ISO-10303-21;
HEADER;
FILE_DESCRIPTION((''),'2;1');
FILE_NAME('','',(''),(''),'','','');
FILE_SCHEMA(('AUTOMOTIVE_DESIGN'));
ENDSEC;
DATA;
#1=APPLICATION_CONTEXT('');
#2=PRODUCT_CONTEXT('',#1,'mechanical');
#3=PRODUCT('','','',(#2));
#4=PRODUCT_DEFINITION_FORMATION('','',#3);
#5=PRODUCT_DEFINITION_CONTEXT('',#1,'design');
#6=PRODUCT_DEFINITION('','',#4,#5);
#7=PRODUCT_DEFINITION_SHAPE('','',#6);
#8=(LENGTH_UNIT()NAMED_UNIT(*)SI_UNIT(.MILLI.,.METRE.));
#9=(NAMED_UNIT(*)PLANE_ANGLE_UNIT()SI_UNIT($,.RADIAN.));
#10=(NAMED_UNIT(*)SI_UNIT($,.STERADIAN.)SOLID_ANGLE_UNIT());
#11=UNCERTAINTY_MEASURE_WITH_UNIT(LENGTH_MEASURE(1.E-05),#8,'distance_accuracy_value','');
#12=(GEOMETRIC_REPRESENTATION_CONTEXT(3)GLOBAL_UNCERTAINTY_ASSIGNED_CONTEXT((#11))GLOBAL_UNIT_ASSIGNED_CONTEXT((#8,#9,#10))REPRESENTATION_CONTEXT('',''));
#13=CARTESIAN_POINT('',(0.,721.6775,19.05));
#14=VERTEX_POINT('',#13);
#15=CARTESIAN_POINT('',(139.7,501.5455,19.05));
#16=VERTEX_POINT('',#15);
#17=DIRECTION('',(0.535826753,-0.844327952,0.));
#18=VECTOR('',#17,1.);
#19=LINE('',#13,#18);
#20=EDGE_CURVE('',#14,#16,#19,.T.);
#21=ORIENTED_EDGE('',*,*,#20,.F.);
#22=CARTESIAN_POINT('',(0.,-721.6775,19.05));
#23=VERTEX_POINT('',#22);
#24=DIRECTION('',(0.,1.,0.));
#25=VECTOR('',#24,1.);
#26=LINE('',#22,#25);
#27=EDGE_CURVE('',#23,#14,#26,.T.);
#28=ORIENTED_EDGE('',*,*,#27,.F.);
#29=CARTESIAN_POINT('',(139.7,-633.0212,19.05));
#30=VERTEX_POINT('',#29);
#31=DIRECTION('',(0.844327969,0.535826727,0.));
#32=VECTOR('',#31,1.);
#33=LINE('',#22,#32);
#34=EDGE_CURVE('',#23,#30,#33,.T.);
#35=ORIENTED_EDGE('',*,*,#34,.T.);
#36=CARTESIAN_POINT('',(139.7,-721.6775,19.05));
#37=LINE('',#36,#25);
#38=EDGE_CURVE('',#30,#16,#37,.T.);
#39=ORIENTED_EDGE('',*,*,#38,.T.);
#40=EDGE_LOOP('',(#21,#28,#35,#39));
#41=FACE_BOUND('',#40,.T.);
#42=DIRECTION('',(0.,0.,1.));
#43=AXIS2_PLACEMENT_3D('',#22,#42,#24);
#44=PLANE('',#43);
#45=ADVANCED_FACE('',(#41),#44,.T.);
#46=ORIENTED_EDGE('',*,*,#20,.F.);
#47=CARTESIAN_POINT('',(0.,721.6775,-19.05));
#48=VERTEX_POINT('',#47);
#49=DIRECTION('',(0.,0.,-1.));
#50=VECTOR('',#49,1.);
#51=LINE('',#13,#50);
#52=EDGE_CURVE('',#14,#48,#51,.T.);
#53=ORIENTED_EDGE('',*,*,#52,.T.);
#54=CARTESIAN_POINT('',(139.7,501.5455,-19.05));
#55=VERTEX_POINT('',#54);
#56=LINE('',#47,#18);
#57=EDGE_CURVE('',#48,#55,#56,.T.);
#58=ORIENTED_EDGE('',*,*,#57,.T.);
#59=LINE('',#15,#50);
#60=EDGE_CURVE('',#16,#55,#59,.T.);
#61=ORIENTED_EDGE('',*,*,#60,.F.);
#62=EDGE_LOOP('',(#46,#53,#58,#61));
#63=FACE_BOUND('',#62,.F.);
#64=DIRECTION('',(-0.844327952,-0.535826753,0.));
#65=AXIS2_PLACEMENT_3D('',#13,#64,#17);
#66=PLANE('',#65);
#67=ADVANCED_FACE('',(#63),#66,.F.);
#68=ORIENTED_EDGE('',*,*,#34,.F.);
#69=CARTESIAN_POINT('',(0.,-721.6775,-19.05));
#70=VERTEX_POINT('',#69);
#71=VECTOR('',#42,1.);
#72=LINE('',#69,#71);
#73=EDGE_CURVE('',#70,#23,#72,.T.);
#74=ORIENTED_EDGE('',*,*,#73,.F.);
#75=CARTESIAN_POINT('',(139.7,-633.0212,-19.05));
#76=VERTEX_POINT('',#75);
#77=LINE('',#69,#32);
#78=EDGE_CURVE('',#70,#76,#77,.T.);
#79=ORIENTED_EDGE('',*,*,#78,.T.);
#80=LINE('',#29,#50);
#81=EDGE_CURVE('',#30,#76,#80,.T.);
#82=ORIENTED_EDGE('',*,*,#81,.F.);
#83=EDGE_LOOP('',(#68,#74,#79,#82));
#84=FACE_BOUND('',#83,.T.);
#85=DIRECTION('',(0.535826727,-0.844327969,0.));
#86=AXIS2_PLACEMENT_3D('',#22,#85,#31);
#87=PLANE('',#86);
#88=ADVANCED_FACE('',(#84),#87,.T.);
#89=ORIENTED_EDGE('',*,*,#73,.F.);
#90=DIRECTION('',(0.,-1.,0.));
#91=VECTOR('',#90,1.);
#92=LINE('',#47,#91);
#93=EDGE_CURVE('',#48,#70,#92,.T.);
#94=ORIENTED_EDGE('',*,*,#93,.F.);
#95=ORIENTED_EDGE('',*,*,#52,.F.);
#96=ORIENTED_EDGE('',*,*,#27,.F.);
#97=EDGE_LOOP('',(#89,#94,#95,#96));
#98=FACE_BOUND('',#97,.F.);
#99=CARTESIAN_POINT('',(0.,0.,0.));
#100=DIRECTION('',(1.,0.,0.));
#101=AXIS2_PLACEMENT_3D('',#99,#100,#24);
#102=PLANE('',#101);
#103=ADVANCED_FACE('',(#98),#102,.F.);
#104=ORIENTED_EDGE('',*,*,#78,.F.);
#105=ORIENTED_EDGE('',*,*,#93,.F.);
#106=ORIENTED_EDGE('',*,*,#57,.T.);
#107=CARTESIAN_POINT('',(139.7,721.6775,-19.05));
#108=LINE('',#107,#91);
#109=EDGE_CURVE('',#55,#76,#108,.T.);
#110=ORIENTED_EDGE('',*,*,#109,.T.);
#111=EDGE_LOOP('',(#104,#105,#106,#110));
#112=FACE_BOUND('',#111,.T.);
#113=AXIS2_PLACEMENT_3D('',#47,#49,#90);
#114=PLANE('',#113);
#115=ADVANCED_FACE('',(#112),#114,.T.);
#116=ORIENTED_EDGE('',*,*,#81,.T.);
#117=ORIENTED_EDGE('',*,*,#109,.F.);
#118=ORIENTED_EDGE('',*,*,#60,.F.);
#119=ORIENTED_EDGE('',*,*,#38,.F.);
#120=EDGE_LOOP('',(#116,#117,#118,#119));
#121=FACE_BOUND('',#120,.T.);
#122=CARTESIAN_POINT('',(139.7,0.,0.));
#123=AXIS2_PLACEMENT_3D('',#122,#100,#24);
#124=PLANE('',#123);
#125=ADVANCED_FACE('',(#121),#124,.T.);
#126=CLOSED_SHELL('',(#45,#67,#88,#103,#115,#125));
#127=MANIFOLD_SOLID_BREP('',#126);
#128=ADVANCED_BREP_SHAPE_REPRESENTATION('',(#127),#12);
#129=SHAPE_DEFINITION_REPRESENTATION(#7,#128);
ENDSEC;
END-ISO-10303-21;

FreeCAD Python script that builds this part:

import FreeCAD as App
import Part
import Sketcher
from FreeCAD import Vector
Q = App.Units.Quantity

doc = App.newDocument("Part")
body = doc.addObject("PartDesign::Body", "Body")

# Sketch on YZ plane
sketch1 = doc.addObject("Sketcher::SketchObject", "Sketch")
body.addObject(sketch1)
sketch1.AttachmentSupport = (doc.YZ_Plane, [""])
sketch1.MapMode = "FlatFace"
sketch1.addGeometry([
    Part.LineSegment(Vector(722, 19, 0), Vector(-722, 19, 0)),
    Part.LineSegment(Vector(-722, 19, 0), Vector(-722, -19, 0)),
    Part.LineSegment(Vector(-722, -19, 0), Vector(722, -19, 0)),
    Part.LineSegment(Vector(722, -19, 0), Vector(722, 19, 0)),
], False)
sketch1.addConstraint([
    Sketcher.Constraint("Coincident", 0, 2, 1, 1),
    Sketcher.Constraint("Coincident", 1, 2, 2, 1),
    Sketcher.Constraint("Coincident", 2, 2, 3, 1),
    Sketcher.Constraint("Coincident", 3, 2, 0, 1),
    Sketcher.Constraint("Horizontal", 0),
    Sketcher.Constraint("Vertical", 1),
    Sketcher.Constraint("Horizontal", 2),
    Sketcher.Constraint("Vertical", 3),
    Sketcher.Constraint("Symmetric", 0, 2, 2, 2, -1, 1),
    Sketcher.Constraint("DistanceY", 1, 2, 1, 1, Q("1.5 in")),
    Sketcher.Constraint("DistanceX", 0, 2, 0, 1, Q("56.825 in")),
])
pad1 = doc.addObject("PartDesign::Pad", "Pad")
body.addObject(pad1)
pad1.Profile = sketch1
pad1.Length = Q("5.5 in")

# Sketch on XY plane
sketch2 = doc.addObject("Sketcher::SketchObject", "Sketch001")
body.addObject(sketch2)
sketch2.AttachmentSupport = (doc.XY_Plane, [""])
sketch2.MapMode = "FlatFace"
sketch2.AttachmentOffset = App.Placement(Vector(0, 0, 0.75 * 25.4), App.Rotation())
sketch2.addGeometry([
    Part.LineSegment(Vector(140, -633, 0), Vector(0, -722, 0)),  # 0
    Part.LineSegment(Vector(0, -722, 0), Vector(140, -722, 0)),  # 1
    Part.LineSegment(Vector(140, -722, 0), Vector(140, -633, 0)),  # 2
    Part.LineSegment(Vector(140, 722, 0), Vector(0, 722, 0)),  # 3
    Part.LineSegment(Vector(0, 722, 0), Vector(140, 502, 0)),  # 4
    Part.LineSegment(Vector(140, 502, 0), Vector(140, 722, 0)),  # 5
], False)
sketch2.addConstraint([
    Sketcher.Constraint("Coincident", 0, 2, 1, 1),
    Sketcher.Constraint("Coincident", 1, 2, 2, 1),
    Sketcher.Constraint("Coincident", 2, 2, 0, 1),
    Sketcher.Constraint("Coincident", 3, 2, 4, 1),
    Sketcher.Constraint("Coincident", 4, 2, 5, 1),
    Sketcher.Constraint("Coincident", 5, 2, 3, 1),
    Sketcher.Constraint("Horizontal", 1),
    Sketcher.Constraint("Vertical", 2),
    Sketcher.Constraint("Horizontal", 3),
    Sketcher.Constraint("Vertical", 5),
    Sketcher.Constraint("Symmetric", 0, 2, 3, 2, -1, 1),
    Sketcher.Constraint("PointOnObject", 0, 2, -2),
    Sketcher.Constraint("Perpendicular", 0, 4),
    Sketcher.Constraint("Vertical", 2, 2, 4, 2),
    Sketcher.Constraint("Angle", 4, Q("-57.6 deg")),
    Sketcher.Constraint("DistanceX", 1, 1, 1, 2, Q("5.5 in")),
    Sketcher.Constraint("DistanceY", 0, 2, 3, 2, Q("56.825 in")),
])
pocket1 = doc.addObject("PartDesign::Pocket", "Pocket")
body.addObject(pocket1)
pocket1.Profile = sketch2
pocket1.Length = Q("1.5 in")

doc.recompute()
